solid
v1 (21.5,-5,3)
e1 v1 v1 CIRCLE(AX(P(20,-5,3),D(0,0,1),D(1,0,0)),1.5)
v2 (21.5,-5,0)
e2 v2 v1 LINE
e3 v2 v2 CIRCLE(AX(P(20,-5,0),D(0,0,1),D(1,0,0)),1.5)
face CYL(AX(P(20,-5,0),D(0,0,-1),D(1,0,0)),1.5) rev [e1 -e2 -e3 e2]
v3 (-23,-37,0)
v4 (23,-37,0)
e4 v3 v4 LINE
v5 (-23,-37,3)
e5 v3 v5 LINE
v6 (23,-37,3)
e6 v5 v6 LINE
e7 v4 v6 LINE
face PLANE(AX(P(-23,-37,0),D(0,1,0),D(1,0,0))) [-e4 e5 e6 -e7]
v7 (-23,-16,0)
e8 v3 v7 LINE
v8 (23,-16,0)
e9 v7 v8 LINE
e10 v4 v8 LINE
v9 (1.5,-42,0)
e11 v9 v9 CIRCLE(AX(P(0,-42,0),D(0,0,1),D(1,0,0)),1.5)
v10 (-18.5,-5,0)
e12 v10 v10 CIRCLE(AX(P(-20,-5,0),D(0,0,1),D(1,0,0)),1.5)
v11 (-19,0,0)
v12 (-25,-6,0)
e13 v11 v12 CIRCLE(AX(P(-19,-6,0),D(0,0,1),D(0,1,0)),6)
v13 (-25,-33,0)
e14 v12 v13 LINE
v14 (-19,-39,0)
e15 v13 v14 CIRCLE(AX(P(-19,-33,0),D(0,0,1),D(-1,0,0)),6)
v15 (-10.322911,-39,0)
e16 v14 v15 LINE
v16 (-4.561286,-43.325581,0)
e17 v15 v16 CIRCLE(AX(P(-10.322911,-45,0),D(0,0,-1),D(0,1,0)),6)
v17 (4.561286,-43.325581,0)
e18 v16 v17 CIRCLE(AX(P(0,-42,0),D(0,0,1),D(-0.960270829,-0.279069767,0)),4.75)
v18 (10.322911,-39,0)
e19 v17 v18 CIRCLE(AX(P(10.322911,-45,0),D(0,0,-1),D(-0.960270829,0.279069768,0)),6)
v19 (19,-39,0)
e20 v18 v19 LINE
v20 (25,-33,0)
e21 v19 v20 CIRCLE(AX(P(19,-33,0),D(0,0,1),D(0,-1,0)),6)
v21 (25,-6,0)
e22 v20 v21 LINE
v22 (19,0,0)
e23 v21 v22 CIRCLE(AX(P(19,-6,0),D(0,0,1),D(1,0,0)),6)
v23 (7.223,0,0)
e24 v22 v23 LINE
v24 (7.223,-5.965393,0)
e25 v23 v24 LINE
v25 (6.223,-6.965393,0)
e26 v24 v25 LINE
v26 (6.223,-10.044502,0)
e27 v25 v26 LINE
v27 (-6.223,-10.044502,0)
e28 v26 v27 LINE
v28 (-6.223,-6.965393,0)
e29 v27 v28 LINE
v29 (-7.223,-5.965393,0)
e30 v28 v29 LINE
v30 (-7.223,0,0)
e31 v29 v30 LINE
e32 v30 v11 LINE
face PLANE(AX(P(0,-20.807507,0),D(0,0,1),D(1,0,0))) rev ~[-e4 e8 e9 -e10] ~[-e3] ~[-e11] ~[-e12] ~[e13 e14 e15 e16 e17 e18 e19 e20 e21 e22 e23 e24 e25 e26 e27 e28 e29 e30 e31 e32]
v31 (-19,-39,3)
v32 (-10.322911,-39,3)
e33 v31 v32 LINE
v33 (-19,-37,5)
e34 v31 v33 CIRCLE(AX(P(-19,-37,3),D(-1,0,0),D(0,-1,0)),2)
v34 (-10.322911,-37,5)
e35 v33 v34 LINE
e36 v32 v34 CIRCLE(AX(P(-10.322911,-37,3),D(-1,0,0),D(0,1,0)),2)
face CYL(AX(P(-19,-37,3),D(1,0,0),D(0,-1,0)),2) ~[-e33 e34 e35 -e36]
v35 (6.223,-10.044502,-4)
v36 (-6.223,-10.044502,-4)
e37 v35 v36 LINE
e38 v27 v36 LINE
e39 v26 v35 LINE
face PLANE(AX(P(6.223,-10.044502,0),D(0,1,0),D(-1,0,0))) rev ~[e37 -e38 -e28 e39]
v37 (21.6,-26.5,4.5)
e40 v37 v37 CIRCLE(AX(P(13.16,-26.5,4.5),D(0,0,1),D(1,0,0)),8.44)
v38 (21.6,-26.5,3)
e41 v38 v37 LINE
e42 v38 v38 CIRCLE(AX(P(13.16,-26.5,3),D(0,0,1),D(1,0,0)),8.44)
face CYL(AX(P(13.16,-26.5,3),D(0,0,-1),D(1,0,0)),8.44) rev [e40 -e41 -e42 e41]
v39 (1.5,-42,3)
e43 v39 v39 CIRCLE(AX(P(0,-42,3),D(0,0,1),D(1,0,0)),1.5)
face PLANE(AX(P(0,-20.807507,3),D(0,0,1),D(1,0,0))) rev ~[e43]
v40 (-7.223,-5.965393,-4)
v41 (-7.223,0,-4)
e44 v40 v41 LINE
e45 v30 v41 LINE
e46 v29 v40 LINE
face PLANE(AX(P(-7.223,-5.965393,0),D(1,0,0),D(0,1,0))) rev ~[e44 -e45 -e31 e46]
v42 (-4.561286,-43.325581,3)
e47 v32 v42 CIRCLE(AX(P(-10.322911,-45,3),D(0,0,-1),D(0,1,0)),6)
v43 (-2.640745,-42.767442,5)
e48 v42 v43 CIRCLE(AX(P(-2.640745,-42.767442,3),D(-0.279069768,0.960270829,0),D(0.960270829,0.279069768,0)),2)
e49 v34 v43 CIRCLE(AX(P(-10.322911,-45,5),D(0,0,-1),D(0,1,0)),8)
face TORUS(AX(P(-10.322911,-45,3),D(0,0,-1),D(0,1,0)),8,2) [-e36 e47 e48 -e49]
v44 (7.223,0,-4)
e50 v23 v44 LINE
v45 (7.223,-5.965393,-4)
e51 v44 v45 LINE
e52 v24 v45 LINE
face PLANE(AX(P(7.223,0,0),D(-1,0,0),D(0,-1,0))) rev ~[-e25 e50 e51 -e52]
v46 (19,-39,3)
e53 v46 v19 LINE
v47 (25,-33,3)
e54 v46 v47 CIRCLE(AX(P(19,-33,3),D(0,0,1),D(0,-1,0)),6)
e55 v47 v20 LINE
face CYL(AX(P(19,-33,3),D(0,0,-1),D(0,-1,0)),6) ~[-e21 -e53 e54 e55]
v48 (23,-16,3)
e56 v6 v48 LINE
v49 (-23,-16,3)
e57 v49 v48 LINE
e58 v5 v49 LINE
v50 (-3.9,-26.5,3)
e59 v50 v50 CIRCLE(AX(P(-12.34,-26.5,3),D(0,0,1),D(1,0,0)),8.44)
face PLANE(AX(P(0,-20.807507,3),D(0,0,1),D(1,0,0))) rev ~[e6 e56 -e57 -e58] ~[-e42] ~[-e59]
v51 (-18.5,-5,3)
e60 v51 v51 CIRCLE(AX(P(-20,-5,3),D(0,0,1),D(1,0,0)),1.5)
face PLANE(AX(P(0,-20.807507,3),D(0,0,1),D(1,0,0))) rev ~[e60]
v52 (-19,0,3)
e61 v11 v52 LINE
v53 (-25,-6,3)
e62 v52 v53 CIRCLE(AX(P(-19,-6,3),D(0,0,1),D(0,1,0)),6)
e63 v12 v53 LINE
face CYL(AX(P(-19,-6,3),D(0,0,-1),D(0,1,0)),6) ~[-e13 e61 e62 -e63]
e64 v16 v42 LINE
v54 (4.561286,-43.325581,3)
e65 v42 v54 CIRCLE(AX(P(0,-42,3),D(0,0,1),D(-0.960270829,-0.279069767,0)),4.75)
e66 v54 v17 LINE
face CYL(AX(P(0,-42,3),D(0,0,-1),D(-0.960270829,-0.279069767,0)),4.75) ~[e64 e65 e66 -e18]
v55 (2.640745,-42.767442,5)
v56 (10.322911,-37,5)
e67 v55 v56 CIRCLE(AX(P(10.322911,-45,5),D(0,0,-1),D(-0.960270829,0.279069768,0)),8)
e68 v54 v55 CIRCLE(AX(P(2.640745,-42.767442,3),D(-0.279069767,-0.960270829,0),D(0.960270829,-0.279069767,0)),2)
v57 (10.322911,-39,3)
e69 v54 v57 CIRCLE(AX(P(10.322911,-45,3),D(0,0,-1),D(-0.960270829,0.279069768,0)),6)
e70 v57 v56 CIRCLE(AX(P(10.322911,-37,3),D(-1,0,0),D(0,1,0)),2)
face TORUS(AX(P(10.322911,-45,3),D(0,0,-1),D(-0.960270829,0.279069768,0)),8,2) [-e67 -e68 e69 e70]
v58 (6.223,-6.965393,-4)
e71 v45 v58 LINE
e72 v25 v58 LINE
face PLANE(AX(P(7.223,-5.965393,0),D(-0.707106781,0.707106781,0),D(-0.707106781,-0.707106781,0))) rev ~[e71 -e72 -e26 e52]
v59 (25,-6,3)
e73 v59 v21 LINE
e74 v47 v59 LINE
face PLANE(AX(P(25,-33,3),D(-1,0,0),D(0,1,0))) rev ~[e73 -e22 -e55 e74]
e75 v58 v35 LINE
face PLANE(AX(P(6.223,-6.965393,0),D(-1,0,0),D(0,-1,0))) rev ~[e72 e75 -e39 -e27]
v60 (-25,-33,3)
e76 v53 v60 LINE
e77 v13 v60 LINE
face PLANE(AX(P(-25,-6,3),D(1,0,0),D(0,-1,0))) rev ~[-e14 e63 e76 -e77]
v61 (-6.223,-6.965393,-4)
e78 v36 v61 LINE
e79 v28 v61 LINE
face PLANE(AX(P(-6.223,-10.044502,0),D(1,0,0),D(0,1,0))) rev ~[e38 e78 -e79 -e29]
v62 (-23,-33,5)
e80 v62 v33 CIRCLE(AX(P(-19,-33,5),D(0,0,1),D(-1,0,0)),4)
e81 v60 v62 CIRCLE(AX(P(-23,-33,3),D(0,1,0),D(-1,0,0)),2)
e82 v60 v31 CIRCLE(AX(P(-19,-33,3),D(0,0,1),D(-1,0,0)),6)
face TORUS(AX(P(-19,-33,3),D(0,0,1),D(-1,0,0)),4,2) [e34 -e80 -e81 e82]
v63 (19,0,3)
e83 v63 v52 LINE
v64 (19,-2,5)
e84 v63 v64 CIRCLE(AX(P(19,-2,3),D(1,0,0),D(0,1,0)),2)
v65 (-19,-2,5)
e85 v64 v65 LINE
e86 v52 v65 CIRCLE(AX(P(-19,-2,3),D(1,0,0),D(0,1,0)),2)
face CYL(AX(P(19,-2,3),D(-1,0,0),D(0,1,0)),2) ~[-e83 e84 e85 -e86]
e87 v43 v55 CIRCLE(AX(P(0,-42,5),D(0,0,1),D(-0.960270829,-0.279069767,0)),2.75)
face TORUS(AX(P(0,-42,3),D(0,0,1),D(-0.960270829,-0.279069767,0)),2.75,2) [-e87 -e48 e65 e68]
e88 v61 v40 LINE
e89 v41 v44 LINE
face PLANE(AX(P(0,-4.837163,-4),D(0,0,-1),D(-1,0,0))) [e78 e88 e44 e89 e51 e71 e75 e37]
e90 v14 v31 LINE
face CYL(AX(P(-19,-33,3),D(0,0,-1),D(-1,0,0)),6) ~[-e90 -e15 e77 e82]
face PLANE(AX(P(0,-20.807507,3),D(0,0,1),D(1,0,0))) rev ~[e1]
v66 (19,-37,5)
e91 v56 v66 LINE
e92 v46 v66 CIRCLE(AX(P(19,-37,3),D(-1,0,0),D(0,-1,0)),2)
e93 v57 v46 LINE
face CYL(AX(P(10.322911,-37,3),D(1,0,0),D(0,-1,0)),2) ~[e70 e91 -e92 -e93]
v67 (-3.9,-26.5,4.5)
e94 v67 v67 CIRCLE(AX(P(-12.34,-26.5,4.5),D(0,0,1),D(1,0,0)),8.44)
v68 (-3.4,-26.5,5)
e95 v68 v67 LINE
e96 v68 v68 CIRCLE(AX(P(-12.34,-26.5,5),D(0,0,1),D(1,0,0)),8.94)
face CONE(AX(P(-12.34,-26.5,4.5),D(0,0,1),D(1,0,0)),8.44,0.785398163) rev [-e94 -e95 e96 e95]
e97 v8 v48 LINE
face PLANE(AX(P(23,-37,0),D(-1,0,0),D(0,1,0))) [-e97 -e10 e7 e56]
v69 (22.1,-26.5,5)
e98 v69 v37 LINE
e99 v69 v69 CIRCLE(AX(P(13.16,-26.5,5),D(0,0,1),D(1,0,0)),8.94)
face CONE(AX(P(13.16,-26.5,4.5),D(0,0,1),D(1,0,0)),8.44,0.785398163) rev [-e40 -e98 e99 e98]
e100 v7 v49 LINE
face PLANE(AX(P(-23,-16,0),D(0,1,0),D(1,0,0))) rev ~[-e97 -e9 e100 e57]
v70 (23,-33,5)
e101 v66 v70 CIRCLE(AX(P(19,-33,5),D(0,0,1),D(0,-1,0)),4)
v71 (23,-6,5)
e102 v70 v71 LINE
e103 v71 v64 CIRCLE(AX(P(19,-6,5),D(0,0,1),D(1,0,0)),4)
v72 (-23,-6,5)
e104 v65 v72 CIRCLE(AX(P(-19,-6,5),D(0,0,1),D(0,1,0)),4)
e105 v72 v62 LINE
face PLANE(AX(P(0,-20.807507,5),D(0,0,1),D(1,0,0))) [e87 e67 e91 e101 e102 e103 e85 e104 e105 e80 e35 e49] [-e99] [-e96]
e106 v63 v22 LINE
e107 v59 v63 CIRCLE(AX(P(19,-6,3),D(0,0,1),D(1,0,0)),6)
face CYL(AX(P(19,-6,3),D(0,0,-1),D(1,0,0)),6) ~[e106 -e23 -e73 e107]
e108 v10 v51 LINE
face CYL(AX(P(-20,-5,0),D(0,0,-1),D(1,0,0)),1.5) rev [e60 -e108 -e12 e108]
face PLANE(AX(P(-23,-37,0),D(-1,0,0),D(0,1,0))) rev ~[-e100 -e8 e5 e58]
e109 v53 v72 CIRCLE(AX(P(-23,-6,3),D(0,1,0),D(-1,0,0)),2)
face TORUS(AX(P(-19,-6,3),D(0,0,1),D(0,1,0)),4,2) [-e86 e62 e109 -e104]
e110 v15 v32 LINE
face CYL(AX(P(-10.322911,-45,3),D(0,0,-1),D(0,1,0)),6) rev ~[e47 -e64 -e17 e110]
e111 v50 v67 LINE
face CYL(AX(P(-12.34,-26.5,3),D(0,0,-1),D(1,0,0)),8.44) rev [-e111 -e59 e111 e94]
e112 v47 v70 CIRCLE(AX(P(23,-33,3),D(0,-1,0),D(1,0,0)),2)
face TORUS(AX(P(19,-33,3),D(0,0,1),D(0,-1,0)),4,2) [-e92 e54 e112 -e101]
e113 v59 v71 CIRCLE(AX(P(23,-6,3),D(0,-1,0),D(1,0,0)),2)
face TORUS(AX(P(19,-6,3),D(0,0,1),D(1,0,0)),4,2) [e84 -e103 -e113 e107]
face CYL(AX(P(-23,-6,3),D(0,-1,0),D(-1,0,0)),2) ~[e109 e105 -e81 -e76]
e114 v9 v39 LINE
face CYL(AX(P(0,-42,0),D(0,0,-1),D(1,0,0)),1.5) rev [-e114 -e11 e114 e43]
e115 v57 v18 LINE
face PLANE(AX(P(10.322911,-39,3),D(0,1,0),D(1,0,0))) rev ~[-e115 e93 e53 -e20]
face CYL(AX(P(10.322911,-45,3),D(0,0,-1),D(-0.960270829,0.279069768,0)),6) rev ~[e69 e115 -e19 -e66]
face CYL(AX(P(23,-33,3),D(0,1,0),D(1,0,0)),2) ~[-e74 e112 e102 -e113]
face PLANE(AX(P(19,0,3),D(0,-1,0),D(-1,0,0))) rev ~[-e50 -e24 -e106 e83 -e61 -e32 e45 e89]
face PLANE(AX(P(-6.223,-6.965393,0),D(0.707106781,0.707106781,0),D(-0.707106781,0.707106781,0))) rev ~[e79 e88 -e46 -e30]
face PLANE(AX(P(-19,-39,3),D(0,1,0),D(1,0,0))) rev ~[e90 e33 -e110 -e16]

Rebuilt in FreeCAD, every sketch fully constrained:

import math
import FreeCAD as App
import Part
import Sketcher

V = App.Vector
Q = App.Units.Quantity


def edges_at(feature, points):
    """Names of the edges that pass closest to the given points."""
    edges = feature.Shape.Edges
    near = lambda p: min(range(len(edges)), key=lambda i: edges[i].distToShape(Part.Vertex(*p))[0])
    return sorted({f"Edge{near(p) + 1}" for p in points})

doc = App.newDocument("Part")
body = doc.addObject("PartDesign::Body", "Body")

sketch1 = body.newObject("Sketcher::SketchObject", "Sketch")
sketch1.AttachmentSupport = (doc.getObject("XY_Plane"), [""])
sketch1.MapMode = "FlatFace"
sketch1.addGeometry(Part.LineSegment(V(19, 0, 0), V(-19, 0, 0)), False)
sketch1.addGeometry(Part.ArcOfCircle(Part.Circle(V(-19, -6, 0), V(0, 0, 1), 6), math.radians(90), math.radians(180)), False)
sketch1.addGeometry(Part.LineSegment(V(-25, -6, 0), V(-25, -33, 0)), False)
sketch1.addGeometry(Part.ArcOfCircle(Part.Circle(V(-19, -33, 0), V(0, 0, 1), 6), math.radians(180), math.radians(270)), False)
sketch1.addGeometry(Part.LineSegment(V(-19, -39, 0), V(-10.3, -39, 0)), False)
sketch1.addGeometry(Part.ArcOfCircle(Part.Circle(V(-10.3, -45, 0), V(0, 0, 1), 6), math.radians(16), math.radians(90)), False)
sketch1.addGeometry(Part.ArcOfCircle(Part.Circle(V(0, -42, 0), V(0, 0, 1), 4.7), math.radians(-164), math.radians(-16)), False)
sketch1.addGeometry(Part.ArcOfCircle(Part.Circle(V(10.3, -45, 0), V(0, 0, 1), 6), math.radians(90), math.radians(164)), False)
sketch1.addGeometry(Part.LineSegment(V(10.3, -39, 0), V(19, -39, 0)), False)
sketch1.addGeometry(Part.ArcOfCircle(Part.Circle(V(19, -33, 0), V(0, 0, 1), 6), math.radians(-90), math.radians(0)), False)
sketch1.addGeometry(Part.LineSegment(V(25, -33, 0), V(25, -6, 0)), False)
sketch1.addGeometry(Part.ArcOfCircle(Part.Circle(V(19, -6, 0), V(0, 0, 1), 6), math.radians(0), math.radians(90)), False)
sketch1.addGeometry(Part.Circle(V(0, -42, 0), V(0, 0, 1), 1.5), False)
sketch1.addGeometry(Part.LineSegment(V(23, -37, 0), V(-23, -37, 0)), False)
sketch1.addGeometry(Part.LineSegment(V(-23, -37, 0), V(-23, -16, 0)), False)
sketch1.addGeometry(Part.LineSegment(V(-23, -16, 0), V(23, -16, 0)), False)
sketch1.addGeometry(Part.LineSegment(V(23, -16, 0), V(23, -37, 0)), False)
sketch1.addGeometry(Part.Circle(V(-20, -5, 0), V(0, 0, 1), 1.5), False)
sketch1.addGeometry(Part.Circle(V(20, -5, 0), V(0, 0, 1), 1.5), False)
sketch1.addConstraint(Sketcher.Constraint("Tangent", 0, 2, 1, 1))
sketch1.addConstraint(Sketcher.Constraint("Tangent", 1, 2, 2, 1))
sketch1.addConstraint(Sketcher.Constraint("Tangent", 2, 2, 3, 1))
sketch1.addConstraint(Sketcher.Constraint("Tangent", 3, 2, 4, 1))
sketch1.addConstraint(Sketcher.Constraint("Tangent", 4, 2, 5, 2))
sketch1.addConstraint(Sketcher.Constraint("Tangent", 5, 1, 6, 1))
sketch1.addConstraint(Sketcher.Constraint("Tangent", 6, 2, 7, 2))
sketch1.addConstraint(Sketcher.Constraint("Tangent", 7, 1, 8, 1))
sketch1.addConstraint(Sketcher.Constraint("Tangent", 8, 2, 9, 1))
sketch1.addConstraint(Sketcher.Constraint("Tangent", 9, 2, 10, 1))
sketch1.addConstraint(Sketcher.Constraint("Tangent", 10, 2, 11, 1))
sketch1.addConstraint(Sketcher.Constraint("Tangent", 11, 2, 0, 1))
sketch1.addConstraint(Sketcher.Constraint("Coincident", 13, 2, 14, 1))
sketch1.addConstraint(Sketcher.Constraint("Coincident", 14, 2, 15, 1))
sketch1.addConstraint(Sketcher.Constraint("Coincident", 15, 2, 16, 1))
sketch1.addConstraint(Sketcher.Constraint("Coincident", 16, 2, 13, 1))
sketch1.addConstraint(Sketcher.Constraint("Horizontal", 0))
sketch1.addConstraint(Sketcher.Constraint("Vertical", 2))
sketch1.addConstraint(Sketcher.Constraint("Horizontal", 4))
sketch1.addConstraint(Sketcher.Constraint("Horizontal", 8))
sketch1.addConstraint(Sketcher.Constraint("Vertical", 10))
sketch1.addConstraint(Sketcher.Constraint("Horizontal", 13))
sketch1.addConstraint(Sketcher.Constraint("Vertical", 14))
sketch1.addConstraint(Sketcher.Constraint("Horizontal", 15))
sketch1.addConstraint(Sketcher.Constraint("Vertical", 16))
sketch1.addConstraint(Sketcher.Constraint("Coincident", 12, 3, 6, 3))
sketch1.addConstraint(Sketcher.Constraint("Equal", 1, 3))
sketch1.addConstraint(Sketcher.Constraint("Equal", 3, 5))
sketch1.addConstraint(Sketcher.Constraint("Equal", 5, 7))
sketch1.addConstraint(Sketcher.Constraint("Equal", 7, 9))
sketch1.addConstraint(Sketcher.Constraint("Equal", 9, 11))
sketch1.addConstraint(Sketcher.Constraint("Equal", 12, 17))
sketch1.addConstraint(Sketcher.Constraint("Equal", 17, 18))
sketch1.addConstraint(Sketcher.Constraint("Symmetric", 0, 2, 11, 2, -1, 1))
sketch1.addConstraint(Sketcher.Constraint("Symmetric", 5, 3, 7, 3, -2))
sketch1.addConstraint(Sketcher.Constraint("Symmetric", 17, 3, 18, 3, -2))
sketch1.addConstraint(Sketcher.Constraint("Diameter", 12, Q("3 mm")))
sketch1.addConstraint(Sketcher.Constraint("Radius", 1, Q("6 mm")))
sketch1.addConstraint(Sketcher.Constraint("DistanceX", 0, 2, 0, 1, Q("38 mm")))
sketch1.addConstraint(Sketcher.Constraint("DistanceX", 13, 2, 13, 1, Q("46 mm")))
sketch1.addConstraint(Sketcher.Constraint("DistanceY", 2, 2, 2, 1, Q("27 mm")))
sketch1.addConstraint(Sketcher.Constraint("DistanceY", 14, 1, 14, 2, Q("21 mm")))
sketch1.addConstraint(Sketcher.Constraint("Radius", 6, Q("4.75 mm")))
sketch1.addConstraint(Sketcher.Constraint("DistanceY", 6, 3, -1, 1, Q("42 mm")))
sketch1.addConstraint(Sketcher.Constraint("DistanceX", 17, 3, -1, 1, Q("20 mm")))
sketch1.addConstraint(Sketcher.Constraint("DistanceY", 17, 3, -1, 1, Q("5 mm")))
sketch1.addConstraint(Sketcher.Constraint("DistanceX", 13, 2, -1, 1, Q("23 mm")))
sketch1.addConstraint(Sketcher.Constraint("DistanceY", 13, 2, -1, 1, Q("37 mm")))
pad1 = body.newObject("PartDesign::Pad", "Pad")
pad1.Profile = sketch1
pad1.Length = 3

sketch2 = body.newObject("Sketcher::SketchObject", "Sketch001")
sketch2.AttachmentSupport = (doc.getObject("XY_Plane"), [""])
sketch2.MapMode = "FlatFace"
sketch2.addGeometry(Part.LineSegment(V(7.2, 0, 0), V(7.2, -6, 0)), False)
sketch2.addGeometry(Part.LineSegment(V(7.2, -6, 0), V(6.2, -7, 0)), False)
sketch2.addGeometry(Part.LineSegment(V(6.2, -7, 0), V(6.2, -10, 0)), False)
sketch2.addGeometry(Part.LineSegment(V(6.2, -10, 0), V(-6.2, -10, 0)), False)
sketch2.addGeometry(Part.LineSegment(V(-6.2, -10, 0), V(-6.2, -7, 0)), False)
sketch2.addGeometry(Part.LineSegment(V(-6.2, -7, 0), V(-7.2, -6, 0)), False)
sketch2.addGeometry(Part.LineSegment(V(-7.2, -6, 0), V(-7.2, 0, 0)), False)
sketch2.addGeometry(Part.LineSegment(V(-7.2, 0, 0), V(7.2, 0, 0)), False)
sketch2.addConstraint(Sketcher.Constraint("Coincident", 0, 2, 1, 1))
sketch2.addConstraint(Sketcher.Constraint("Coincident", 1, 2, 2, 1))
sketch2.addConstraint(Sketcher.Constraint("Coincident", 2, 2, 3, 1))
sketch2.addConstraint(Sketcher.Constraint("Coincident", 3, 2, 4, 1))
sketch2.addConstraint(Sketcher.Constraint("Coincident", 4, 2, 5, 1))
sketch2.addConstraint(Sketcher.Constraint("Coincident", 5, 2, 6, 1))
sketch2.addConstraint(Sketcher.Constraint("Coincident", 6, 2, 7, 1))
sketch2.addConstraint(Sketcher.Constraint("Coincident", 7, 2, 0, 1))
sketch2.addConstraint(Sketcher.Constraint("Vertical", 0))
sketch2.addConstraint(Sketcher.Constraint("Vertical", 2))
sketch2.addConstraint(Sketcher.Constraint("Horizontal", 3))
sketch2.addConstraint(Sketcher.Constraint("Vertical", 4))
sketch2.addConstraint(Sketcher.Constraint("Vertical", 6))
sketch2.addConstraint(Sketcher.Constraint("Horizontal", 7))
sketch2.addConstraint(Sketcher.Constraint("Symmetric", 6, 2, 7, 2, -1, 1))
sketch2.addConstraint(Sketcher.Constraint("Symmetric", 1, 2, 4, 2, -2))
sketch2.addConstraint(Sketcher.Constraint("Perpendicular", 1, 5))
sketch2.addConstraint(Sketcher.Constraint("Horizontal", 0, 2, 5, 2))
sketch2.addConstraint(Sketcher.Constraint("DistanceX", 1, 2, 0, 2, Q("1 mm")))
sketch2.addConstraint(Sketcher.Constraint("DistanceX", 3, 2, 3, 1, Q("12.446 mm")))
sketch2.addConstraint(Sketcher.Constraint("DistanceY", 2, 2, 2, 1, Q("3.079109 mm")))
sketch2.addConstraint(Sketcher.Constraint("DistanceY", 2, 2, -1, 1, Q("10.044502 mm")))
pad2 = body.newObject("PartDesign::Pad", "Pad001")
pad2.Profile = sketch2
pad2.Length = 4
pad2.Reversed = True

sketch3 = body.newObject("Sketcher::SketchObject", "Sketch002")
sketch3.AttachmentSupport = (doc.getObject("XY_Plane"), [""])
sketch3.MapMode = "FlatFace"
sketch3.AttachmentOffset = App.Placement(V(0, 0, 3), App.Rotation())
sketch3.addGeometry(Part.LineSegment(V(19, 0, 0), V(-19, 0, 0)), False)
sketch3.addGeometry(Part.ArcOfCircle(Part.Circle(V(-19, -6, 0), V(0, 0, 1), 6), math.radians(90), math.radians(180)), False)
sketch3.addGeometry(Part.LineSegment(V(-25, -6, 0), V(-25, -33, 0)), False)
sketch3.addGeometry(Part.ArcOfCircle(Part.Circle(V(-19, -33, 0), V(0, 0, 1), 6), math.radians(180), math.radians(270)), False)
sketch3.addGeometry(Part.LineSegment(V(-19, -39, 0), V(-10.3, -39, 0)), False)
sketch3.addGeometry(Part.ArcOfCircle(Part.Circle(V(-10.3, -45, 0), V(0, 0, 1), 6), math.radians(16), math.radians(90)), False)
sketch3.addGeometry(Part.ArcOfCircle(Part.Circle(V(0, -42, 0), V(0, 0, 1), 4.7), math.radians(-164), math.radians(-16)), False)
sketch3.addGeometry(Part.ArcOfCircle(Part.Circle(V(10.3, -45, 0), V(0, 0, 1), 6), math.radians(90), math.radians(164)), False)
sketch3.addGeometry(Part.LineSegment(V(10.3, -39, 0), V(19, -39, 0)), False)
sketch3.addGeometry(Part.ArcOfCircle(Part.Circle(V(19, -33, 0), V(0, 0, 1), 6), math.radians(-90), math.radians(0)), False)
sketch3.addGeometry(Part.LineSegment(V(25, -33, 0), V(25, -6, 0)), False)
sketch3.addGeometry(Part.ArcOfCircle(Part.Circle(V(19, -6, 0), V(0, 0, 1), 6), math.radians(0), math.radians(90)), False)
sketch3.addGeometry(Part.Circle(V(-12.3, -26.5, 0), V(0, 0, 1), 8.4), False)
sketch3.addGeometry(Part.Circle(V(13.2, -26.5, 0), V(0, 0, 1), 8.4), False)
sketch3.addConstraint(Sketcher.Constraint("Tangent", 0, 2, 1, 1))
sketch3.addConstraint(Sketcher.Constraint("Tangent", 1, 2, 2, 1))
sketch3.addConstraint(Sketcher.Constraint("Tangent", 2, 2, 3, 1))
sketch3.addConstraint(Sketcher.Constraint("Tangent", 3, 2, 4, 1))
sketch3.addConstraint(Sketcher.Constraint("Tangent", 4, 2, 5, 2))
sketch3.addConstraint(Sketcher.Constraint("Tangent", 5, 1, 6, 1))
sketch3.addConstraint(Sketcher.Constraint("Tangent", 6, 2, 7, 2))
sketch3.addConstraint(Sketcher.Constraint("Tangent", 7, 1, 8, 1))
sketch3.addConstraint(Sketcher.Constraint("Tangent", 8, 2, 9, 1))
sketch3.addConstraint(Sketcher.Constraint("Tangent", 9, 2, 10, 1))
sketch3.addConstraint(Sketcher.Constraint("Tangent", 10, 2, 11, 1))
sketch3.addConstraint(Sketcher.Constraint("Tangent", 11, 2, 0, 1))
sketch3.addConstraint(Sketcher.Constraint("Horizontal", 0))
sketch3.addConstraint(Sketcher.Constraint("Vertical", 2))
sketch3.addConstraint(Sketcher.Constraint("Horizontal", 4))
sketch3.addConstraint(Sketcher.Constraint("Horizontal", 8))
sketch3.addConstraint(Sketcher.Constraint("Vertical", 10))
sketch3.addConstraint(Sketcher.Constraint("Equal", 1, 3))
sketch3.addConstraint(Sketcher.Constraint("Equal", 3, 5))
sketch3.addConstraint(Sketcher.Constraint("Equal", 5, 7))
sketch3.addConstraint(Sketcher.Constraint("Equal", 7, 9))
sketch3.addConstraint(Sketcher.Constraint("Equal", 9, 11))
sketch3.addConstraint(Sketcher.Constraint("Equal", 12, 13))
sketch3.addConstraint(Sketcher.Constraint("Symmetric", 0, 2, 11, 2, -1, 1))
sketch3.addConstraint(Sketcher.Constraint("Symmetric", 5, 3, 7, 3, -2))
sketch3.addConstraint(Sketcher.Constraint("Horizontal", 12, 3, 13, 3))
sketch3.addConstraint(Sketcher.Constraint("Radius", 1, Q("6 mm")))
sketch3.addConstraint(Sketcher.Constraint("Diameter", 12, Q("16.88 mm")))
sketch3.addConstraint(Sketcher.Constraint("DistanceX", 0, 2, 0, 1, Q("38 mm")))
sketch3.addConstraint(Sketcher.Constraint("DistanceY", 2, 2, 2, 1, Q("27 mm")))
sketch3.addConstraint(Sketcher.Constraint("Radius", 6, Q("4.75 mm")))
sketch3.addConstraint(Sketcher.Constraint("DistanceY", 6, 3, -1, 1, Q("42 mm")))
sketch3.addConstraint(Sketcher.Constraint("DistanceY", 12, 3, -1, 1, Q("26.5 mm")))
sketch3.addConstraint(Sketcher.Constraint("DistanceX", 12, 3, 13, 3, Q("25.5 mm")))
sketch3.addConstraint(Sketcher.Constraint("DistanceX", 12, 3, -1, 1, Q("12.34 mm")))
pad3 = body.newObject("PartDesign::Pad", "Pad002")
pad3.Profile = sketch3
pad3.Length = 2
doc.recompute()

fillet = body.newObject("PartDesign::Fillet", "Fillet")
fillet.Base = (pad3, edges_at(pad3, [
    (-6.721, -40.202, 5),
    (0, -46.75, 5),
    (6.721, -40.202, 5),
    (14.661, -39, 5),
    (23.243, -37.243, 5),
    (25, -19.5, 5),
    (23.243, -1.757, 5),
    (0, 0, 5),
    (-23.243, -1.757, 5),
    (-25, -19.5, 5),
    (-23.243, -37.243, 5),
    (-14.661, -39, 5),
]))
fillet.Radius = 2
doc.recompute()

chamfer = body.newObject("PartDesign::Chamfer", "Chamfer")
chamfer.Base = (fillet, edges_at(fillet, [(-20.78, -26.5, 5), (4.72, -26.5, 5)]))
chamfer.Size = 0.5

doc.recompute()
